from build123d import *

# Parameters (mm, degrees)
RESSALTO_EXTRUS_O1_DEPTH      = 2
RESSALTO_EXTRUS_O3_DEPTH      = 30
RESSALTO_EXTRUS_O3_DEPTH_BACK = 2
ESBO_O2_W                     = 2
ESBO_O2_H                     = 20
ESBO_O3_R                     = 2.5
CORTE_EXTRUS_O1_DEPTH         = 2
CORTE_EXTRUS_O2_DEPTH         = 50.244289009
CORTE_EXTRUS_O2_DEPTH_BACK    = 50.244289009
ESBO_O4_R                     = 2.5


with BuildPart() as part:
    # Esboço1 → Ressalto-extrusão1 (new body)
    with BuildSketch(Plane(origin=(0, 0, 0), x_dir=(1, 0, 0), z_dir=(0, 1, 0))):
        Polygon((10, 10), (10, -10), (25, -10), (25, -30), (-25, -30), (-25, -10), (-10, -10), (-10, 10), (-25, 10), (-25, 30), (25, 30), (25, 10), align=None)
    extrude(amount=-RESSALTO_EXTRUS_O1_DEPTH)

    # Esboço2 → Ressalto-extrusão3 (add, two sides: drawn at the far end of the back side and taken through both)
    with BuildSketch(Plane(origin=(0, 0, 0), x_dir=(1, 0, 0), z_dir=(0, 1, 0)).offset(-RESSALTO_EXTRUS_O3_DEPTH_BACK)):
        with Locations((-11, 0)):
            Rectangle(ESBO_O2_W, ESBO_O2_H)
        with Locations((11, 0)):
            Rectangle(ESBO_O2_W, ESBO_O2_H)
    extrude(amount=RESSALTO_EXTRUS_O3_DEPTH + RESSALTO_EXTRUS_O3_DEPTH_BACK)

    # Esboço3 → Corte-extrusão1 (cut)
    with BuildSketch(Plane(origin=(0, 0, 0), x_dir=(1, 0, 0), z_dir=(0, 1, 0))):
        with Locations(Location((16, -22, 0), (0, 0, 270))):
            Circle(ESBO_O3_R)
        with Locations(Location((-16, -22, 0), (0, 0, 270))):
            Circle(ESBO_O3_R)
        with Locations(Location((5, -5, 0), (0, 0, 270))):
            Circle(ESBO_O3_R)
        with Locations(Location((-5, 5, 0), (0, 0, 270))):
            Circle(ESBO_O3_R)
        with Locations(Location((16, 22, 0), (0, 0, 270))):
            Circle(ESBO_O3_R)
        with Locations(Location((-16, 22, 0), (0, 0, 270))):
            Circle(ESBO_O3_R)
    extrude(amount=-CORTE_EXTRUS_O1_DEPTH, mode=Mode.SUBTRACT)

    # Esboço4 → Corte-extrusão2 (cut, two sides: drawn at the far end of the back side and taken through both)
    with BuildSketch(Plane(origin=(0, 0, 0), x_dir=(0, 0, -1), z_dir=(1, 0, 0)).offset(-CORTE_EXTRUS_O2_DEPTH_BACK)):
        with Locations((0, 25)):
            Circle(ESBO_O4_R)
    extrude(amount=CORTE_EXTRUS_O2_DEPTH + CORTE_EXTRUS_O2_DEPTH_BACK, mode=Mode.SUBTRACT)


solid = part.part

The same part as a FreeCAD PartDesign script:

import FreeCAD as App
import Part
import Sketcher

V = App.Vector
Q = App.Units.Quantity


def add_polygon(sketch, points):
    """Adds a closed chain of lines whose ends are joined by coincident constraints."""
    first, n = sketch.GeometryCount, len(points)
    for a, b in zip(points, points[1:] + points[:1]):
        sketch.addGeometry(Part.LineSegment(App.Vector(*a, 0), App.Vector(*b, 0)), False)
    for i in range(n):
        sketch.addConstraint(Sketcher.Constraint("Coincident", first + i, 2, first + (i + 1) % n, 1))

doc = App.newDocument("Part")
body = doc.addObject("PartDesign::Body", "Body")

# Sketch on XZ plane
sketch1 = doc.addObject("Sketcher::SketchObject", "Sketch")
body.addObject(sketch1)
sketch1.AttachmentSupport = (doc.XZ_Plane, [""])
sketch1.MapMode = "FlatFace"
add_polygon(sketch1, [(10, 10), (10, -10), (25, -10), (25, -30), (-25, -30), (-25, -10), (-10, -10), (-10, 10), (-25, 10), (-25, 30), (25, 30), (25, 10)])  # lines 0-11
sketch1.addConstraint([
    Sketcher.Constraint("Vertical", 0),
    Sketcher.Constraint("Horizontal", 1),
    Sketcher.Constraint("Vertical", 2),
    Sketcher.Constraint("Horizontal", 3),
    Sketcher.Constraint("Vertical", 4),
    Sketcher.Constraint("Horizontal", 5),
    Sketcher.Constraint("Vertical", 6),
    Sketcher.Constraint("Horizontal", 7),
    Sketcher.Constraint("Vertical", 8),
    Sketcher.Constraint("Horizontal", 9),
    Sketcher.Constraint("Vertical", 10),
    Sketcher.Constraint("Horizontal", 11),
    Sketcher.Constraint("Symmetric", 0, 2, 6, 2, -1, 1),
    Sketcher.Constraint("Symmetric", 2, 2, 8, 2, -1, 1),
    Sketcher.Constraint("Symmetric", 4, 2, 10, 2, -1, 1),
    Sketcher.Constraint("Symmetric", 1, 2, 4, 2, -2),
    Sketcher.Constraint("Equal", 0, 2),
    Sketcher.Constraint("DistanceX", 1, 1, 1, 2, Q("15 mm")),
    Sketcher.Constraint("DistanceX", 3, 2, 3, 1, Q("50 mm")),
    Sketcher.Constraint("DistanceY", 0, 2, 0, 1, Q("20 mm")),
])
pad1 = doc.addObject("PartDesign::Pad", "Pad")
body.addObject(pad1)
pad1.Profile = sketch1
pad1.Length = 2

# Sketch on XZ plane
sketch2 = doc.addObject("Sketcher::SketchObject", "Sketch001")
body.addObject(sketch2)
sketch2.AttachmentSupport = (doc.XZ_Plane, [""])
sketch2.MapMode = "FlatFace"
add_polygon(sketch2, [(-12, -10), (-12, 10), (-10, 10), (-10, -10)])  # lines 0-3
add_polygon(sketch2, [(10, -10), (10, 10), (12, 10), (12, -10)])  # lines 4-7
sketch2.addConstraint([
    Sketcher.Constraint("Vertical", 0),
    Sketcher.Constraint("Horizontal", 1),
    Sketcher.Constraint("Vertical", 2),
    Sketcher.Constraint("Horizontal", 3),
    Sketcher.Constraint("Vertical", 4),
    Sketcher.Constraint("Horizontal", 5),
    Sketcher.Constraint("Vertical", 6),
    Sketcher.Constraint("Horizontal", 7),
    Sketcher.Constraint("Symmetric", 2, 2, 4, 2, -1, 1),
    Sketcher.Constraint("Symmetric", 0, 2, 6, 2, -1, 1),
    Sketcher.Constraint("Horizontal", 1, 2, 4, 2),
    Sketcher.Constraint("DistanceX", 1, 1, 1, 2, Q("2 mm")),
    Sketcher.Constraint("DistanceY", 0, 1, 0, 2, Q("20 mm")),
    Sketcher.Constraint("DistanceX", 0, 2, -1, 1, Q("12 mm")),
])
pad2 = doc.addObject("PartDesign::Pad", "Pad001")
body.addObject(pad2)
pad2.Profile = sketch2
pad2.Type = "TwoLengths"
pad2.Length = 30
pad2.Length2 = 2
pad2.Reversed = True

# Sketch on XZ plane
sketch3 = doc.addObject("Sketcher::SketchObject", "Sketch002")
body.addObject(sketch3)
sketch3.AttachmentSupport = (doc.XZ_Plane, [""])
sketch3.MapMode = "FlatFace"
sketch3.addGeometry([
    Part.Circle(V(16, 22, 0), V(0, 0, 1), 2.5),  # 0
    Part.Circle(V(-16, 22, 0), V(0, 0, 1), 2.5),  # 1
    Part.Circle(V(5, 5, 0), V(0, 0, 1), 2.5),  # 2
    Part.Circle(V(-5, -5, 0), V(0, 0, 1), 2.5),  # 3
    Part.Circle(V(16, -22, 0), V(0, 0, 1), 2.5),  # 4
    Part.Circle(V(-16, -22, 0), V(0, 0, 1), 2.5),  # 5
], False)
sketch3.addConstraint([
    Sketcher.Constraint("Equal", 0, 1),
    Sketcher.Constraint("Equal", 1, 2),
    Sketcher.Constraint("Equal", 2, 3),
    Sketcher.Constraint("Equal", 3, 4),
    Sketcher.Constraint("Equal", 4, 5),
    Sketcher.Constraint("Symmetric", 2, 3, 3, 3, -1, 1),
    Sketcher.Constraint("Symmetric", 1, 3, 4, 3, -1, 1),
    Sketcher.Constraint("Symmetric", 0, 3, 5, 3, -1, 1),
    Sketcher.Constraint("Symmetric", 0, 3, 1, 3, -2),
    Sketcher.Constraint("Diameter", 0, Q("5 mm")),
    Sketcher.Constraint("DistanceX", -1, 1, 0, 3, Q("16 mm")),
    Sketcher.Constraint("DistanceY", -1, 1, 0, 3, Q("22 mm")),
    Sketcher.Constraint("DistanceX", -1, 1, 2, 3, Q("5 mm")),
    Sketcher.Constraint("DistanceY", -1, 1, 2, 3, Q("5 mm")),
])
pocket1 = doc.addObject("PartDesign::Pocket", "Pocket")
body.addObject(pocket1)
pocket1.Profile = sketch3
pocket1.Length = 2
pocket1.Reversed = True

# Sketch on YZ plane
sketch4 = doc.addObject("Sketcher::SketchObject", "Sketch003")
body.addObject(sketch4)
sketch4.AttachmentSupport = (doc.YZ_Plane, [""])
sketch4.MapMode = "FlatFace"
sketch4.addGeometry(Part.Circle(V(25, 0, 0), V(0, 0, 1), 2.5), False)
sketch4.addConstraint([
    Sketcher.Constraint("PointOnObject", 0, 3, -1),
    Sketcher.Constraint("Diameter", 0, Q("5 mm")),
    Sketcher.Constraint("DistanceX", -1, 1, 0, 3, Q("25 mm")),
])
pocket2 = doc.addObject("PartDesign::Pocket", "Pocket001")
body.addObject(pocket2)
pocket2.Profile = sketch4
pocket2.Type = "ThroughAll"
pocket2.Midplane = True

doc.recompute()
